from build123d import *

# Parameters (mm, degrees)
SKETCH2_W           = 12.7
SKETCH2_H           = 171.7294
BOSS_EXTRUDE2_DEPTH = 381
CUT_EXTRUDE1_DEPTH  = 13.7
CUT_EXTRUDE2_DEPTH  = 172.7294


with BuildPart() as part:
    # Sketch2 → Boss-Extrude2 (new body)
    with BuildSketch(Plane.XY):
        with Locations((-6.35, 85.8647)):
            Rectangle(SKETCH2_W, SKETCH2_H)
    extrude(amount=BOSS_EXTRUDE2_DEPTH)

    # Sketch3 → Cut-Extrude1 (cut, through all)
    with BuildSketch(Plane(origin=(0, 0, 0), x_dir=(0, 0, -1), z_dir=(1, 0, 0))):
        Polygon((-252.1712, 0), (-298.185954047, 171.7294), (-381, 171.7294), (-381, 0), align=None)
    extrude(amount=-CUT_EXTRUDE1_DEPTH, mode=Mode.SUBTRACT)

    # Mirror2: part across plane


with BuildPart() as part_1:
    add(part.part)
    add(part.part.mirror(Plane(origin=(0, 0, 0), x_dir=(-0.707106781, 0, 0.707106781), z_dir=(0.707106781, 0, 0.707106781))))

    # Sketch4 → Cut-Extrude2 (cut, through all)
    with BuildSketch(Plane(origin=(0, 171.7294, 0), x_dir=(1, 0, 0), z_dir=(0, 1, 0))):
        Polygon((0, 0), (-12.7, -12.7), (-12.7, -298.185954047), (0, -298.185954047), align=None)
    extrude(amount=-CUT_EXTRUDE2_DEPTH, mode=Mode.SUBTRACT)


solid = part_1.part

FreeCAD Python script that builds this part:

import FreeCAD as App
import Part
import Sketcher
from FreeCAD import Vector
Q = App.Units.Quantity

doc = App.newDocument("Part")
params = doc.addObject("Spreadsheet::Sheet", "Params")
for row, (alias, value) in enumerate([
    ("sketch1_width", "0.5 in"),
    ("sketch1_height", "6.761 in"),
    ("pad1_length", "15 in"),
    ("sketch2_width", "6.761 in"),
    ("sketch2_height", "5.072 in"),
    ("sketch3_width", "0.5 in"),
], start=1):
    params.set(f"A{row}", alias)
    params.set(f"B{row}", "=" + value)
    params.setAlias(f"B{row}", alias)

body = doc.addObject("PartDesign::Body", "Body")

# Sketch on XY plane
sketch1 = doc.addObject("Sketcher::SketchObject", "Sketch")
body.addObject(sketch1)
sketch1.AttachmentSupport = (doc.XY_Plane, [""])
sketch1.MapMode = "FlatFace"
sketch1.addGeometry([
    Part.LineSegment(Vector(-13, 172, 0), Vector(-13, 0, 0)),
    Part.LineSegment(Vector(-13, 0, 0), Vector(0, 0, 0)),
    Part.LineSegment(Vector(0, 0, 0), Vector(0, 172, 0)),
    Part.LineSegment(Vector(0, 172, 0), Vector(-13, 172, 0)),
], False)
sketch1.addConstraint([
    Sketcher.Constraint("Coincident", 0, 2, 1, 1),
    Sketcher.Constraint("Coincident", 1, 2, 2, 1),
    Sketcher.Constraint("Coincident", 2, 2, 3, 1),
    Sketcher.Constraint("Coincident", 3, 2, 0, 1),
    Sketcher.Constraint("Vertical", 0),
    Sketcher.Constraint("Horizontal", 1),
    Sketcher.Constraint("Vertical", 2),
    Sketcher.Constraint("Horizontal", 3),
    Sketcher.Constraint("Coincident", 1, 2, -1, 1),
    Sketcher.Constraint("DistanceX", 1, 1, 1, 2, Q("0.5 in")),
    Sketcher.Constraint("DistanceY", 0, 2, 0, 1, Q("6.761 in")),
])
sketch1.setExpression("Constraints[9]", "Params.sketch1_width")
sketch1.setExpression("Constraints[10]", "Params.sketch1_height")
pad1 = doc.addObject("PartDesign::Pad", "Pad")
body.addObject(pad1)
pad1.Profile = sketch1
pad1.setExpression("Length", "Params.pad1_length")

# Sketch on YZ plane
sketch2 = doc.addObject("Sketcher::SketchObject", "Sketch001")
body.addObject(sketch2)
sketch2.AttachmentSupport = (doc.YZ_Plane, [""])
sketch2.MapMode = "FlatFace"
sketch2.addGeometry([
    Part.LineSegment(Vector(0, 252, 0), Vector(172, 298, 0)),
    Part.LineSegment(Vector(172, 298, 0), Vector(172, 381, 0)),
    Part.LineSegment(Vector(172, 381, 0), Vector(0, 381, 0)),
    Part.LineSegment(Vector(0, 381, 0), Vector(0, 252, 0)),
], False)
sketch2.addConstraint([
    Sketcher.Constraint("Coincident", 0, 2, 1, 1),
    Sketcher.Constraint("Coincident", 1, 2, 2, 1),
    Sketcher.Constraint("Coincident", 2, 2, 3, 1),
    Sketcher.Constraint("Coincident", 3, 2, 0, 1),
    Sketcher.Constraint("Vertical", 1),
    Sketcher.Constraint("Horizontal", 2),
    Sketcher.Constraint("Vertical", 3),
    Sketcher.Constraint("PointOnObject", 2, 2, -2),
    Sketcher.Constraint("DistanceY", -1, 1, 1, 2, Q("15 in")),
    Sketcher.Constraint("Angle", 0, Q("15 deg")),
    Sketcher.Constraint("DistanceX", 2, 2, 2, 1, Q("6.761 in")),
    Sketcher.Constraint("DistanceY", 3, 2, 3, 1, Q("5.072 in")),
])
sketch2.setExpression("Constraints[10]", "Params.sketch2_width")
sketch2.setExpression("Constraints[11]", "Params.sketch2_height")
pocket1 = doc.addObject("PartDesign::Pocket", "Pocket")
body.addObject(pocket1)
pocket1.Profile = sketch2
pocket1.Type = "ThroughAll"
body2 = doc.addObject("PartDesign::Body", "Body001")
doc.recompute()

body2.BaseFeature = body
doc.recompute()

mirroring = doc.addObject("Part::Mirroring", "Mirroring")
mirroring.Source = body
mirroring.Base = Vector(0, 0, 0)
mirroring.Normal = Vector(0.707106781, 0, 0.707106781)
body3 = doc.addObject("PartDesign::Body", "Body002")
body3.BaseFeature = mirroring
boolean = doc.addObject("PartDesign::Boolean", "Boolean")
body2.addObject(boolean)
boolean.Type = "Fuse"
boolean.addObjects([body3])
doc.recompute()

# Sketch on XZ plane
sketch3 = doc.addObject("Sketcher::SketchObject", "Sketch002")
body2.addObject(sketch3)
sketch3.AttachmentSupport = (doc.getObject("XZ_Plane001"), [""])
sketch3.MapMode = "FlatFace"
sketch3.AttachmentOffset = App.Placement(Vector(0, 0, -6.761 * 25.4), App.Rotation())
sketch3.addGeometry([
    Part.LineSegment(Vector(0, 0, 0), Vector(-13, 13, 0)),
    Part.LineSegment(Vector(-13, 13, 0), Vector(-13, 298, 0)),
    Part.LineSegment(Vector(-13, 298, 0), Vector(0, 298, 0)),
    Part.LineSegment(Vector(0, 298, 0), Vector(0, 0, 0)),
], False)
sketch3.addConstraint([
    Sketcher.Constraint("Coincident", 0, 2, 1, 1),
    Sketcher.Constraint("Coincident", 1, 2, 2, 1),
    Sketcher.Constraint("Coincident", 2, 2, 3, 1),
    Sketcher.Constraint("Coincident", 3, 2, 0, 1),
    Sketcher.Constraint("Vertical", 1),
    Sketcher.Constraint("Horizontal", 2),
    Sketcher.Constraint("Vertical", 3),
    Sketcher.Constraint("Coincident", 3, 2, -1, 1),
    Sketcher.Constraint("DistanceX", 2, 1, 2, 2, Q("0.5 in")),
    Sketcher.Constraint("Angle", 0, Q("135 deg")),
    Sketcher.Constraint("DistanceY", 1, 1, 1, 2, 285.485954),
])
sketch3.setExpression("Constraints[8]", "Params.sketch3_width")
pocket2 = doc.addObject("PartDesign::Pocket", "Pocket001")
body2.addObject(pocket2)
pocket2.Profile = sketch3
pocket2.Type = "ThroughAll"
pocket2.Reversed = True
mirroring.Visibility = False

doc.recompute()
